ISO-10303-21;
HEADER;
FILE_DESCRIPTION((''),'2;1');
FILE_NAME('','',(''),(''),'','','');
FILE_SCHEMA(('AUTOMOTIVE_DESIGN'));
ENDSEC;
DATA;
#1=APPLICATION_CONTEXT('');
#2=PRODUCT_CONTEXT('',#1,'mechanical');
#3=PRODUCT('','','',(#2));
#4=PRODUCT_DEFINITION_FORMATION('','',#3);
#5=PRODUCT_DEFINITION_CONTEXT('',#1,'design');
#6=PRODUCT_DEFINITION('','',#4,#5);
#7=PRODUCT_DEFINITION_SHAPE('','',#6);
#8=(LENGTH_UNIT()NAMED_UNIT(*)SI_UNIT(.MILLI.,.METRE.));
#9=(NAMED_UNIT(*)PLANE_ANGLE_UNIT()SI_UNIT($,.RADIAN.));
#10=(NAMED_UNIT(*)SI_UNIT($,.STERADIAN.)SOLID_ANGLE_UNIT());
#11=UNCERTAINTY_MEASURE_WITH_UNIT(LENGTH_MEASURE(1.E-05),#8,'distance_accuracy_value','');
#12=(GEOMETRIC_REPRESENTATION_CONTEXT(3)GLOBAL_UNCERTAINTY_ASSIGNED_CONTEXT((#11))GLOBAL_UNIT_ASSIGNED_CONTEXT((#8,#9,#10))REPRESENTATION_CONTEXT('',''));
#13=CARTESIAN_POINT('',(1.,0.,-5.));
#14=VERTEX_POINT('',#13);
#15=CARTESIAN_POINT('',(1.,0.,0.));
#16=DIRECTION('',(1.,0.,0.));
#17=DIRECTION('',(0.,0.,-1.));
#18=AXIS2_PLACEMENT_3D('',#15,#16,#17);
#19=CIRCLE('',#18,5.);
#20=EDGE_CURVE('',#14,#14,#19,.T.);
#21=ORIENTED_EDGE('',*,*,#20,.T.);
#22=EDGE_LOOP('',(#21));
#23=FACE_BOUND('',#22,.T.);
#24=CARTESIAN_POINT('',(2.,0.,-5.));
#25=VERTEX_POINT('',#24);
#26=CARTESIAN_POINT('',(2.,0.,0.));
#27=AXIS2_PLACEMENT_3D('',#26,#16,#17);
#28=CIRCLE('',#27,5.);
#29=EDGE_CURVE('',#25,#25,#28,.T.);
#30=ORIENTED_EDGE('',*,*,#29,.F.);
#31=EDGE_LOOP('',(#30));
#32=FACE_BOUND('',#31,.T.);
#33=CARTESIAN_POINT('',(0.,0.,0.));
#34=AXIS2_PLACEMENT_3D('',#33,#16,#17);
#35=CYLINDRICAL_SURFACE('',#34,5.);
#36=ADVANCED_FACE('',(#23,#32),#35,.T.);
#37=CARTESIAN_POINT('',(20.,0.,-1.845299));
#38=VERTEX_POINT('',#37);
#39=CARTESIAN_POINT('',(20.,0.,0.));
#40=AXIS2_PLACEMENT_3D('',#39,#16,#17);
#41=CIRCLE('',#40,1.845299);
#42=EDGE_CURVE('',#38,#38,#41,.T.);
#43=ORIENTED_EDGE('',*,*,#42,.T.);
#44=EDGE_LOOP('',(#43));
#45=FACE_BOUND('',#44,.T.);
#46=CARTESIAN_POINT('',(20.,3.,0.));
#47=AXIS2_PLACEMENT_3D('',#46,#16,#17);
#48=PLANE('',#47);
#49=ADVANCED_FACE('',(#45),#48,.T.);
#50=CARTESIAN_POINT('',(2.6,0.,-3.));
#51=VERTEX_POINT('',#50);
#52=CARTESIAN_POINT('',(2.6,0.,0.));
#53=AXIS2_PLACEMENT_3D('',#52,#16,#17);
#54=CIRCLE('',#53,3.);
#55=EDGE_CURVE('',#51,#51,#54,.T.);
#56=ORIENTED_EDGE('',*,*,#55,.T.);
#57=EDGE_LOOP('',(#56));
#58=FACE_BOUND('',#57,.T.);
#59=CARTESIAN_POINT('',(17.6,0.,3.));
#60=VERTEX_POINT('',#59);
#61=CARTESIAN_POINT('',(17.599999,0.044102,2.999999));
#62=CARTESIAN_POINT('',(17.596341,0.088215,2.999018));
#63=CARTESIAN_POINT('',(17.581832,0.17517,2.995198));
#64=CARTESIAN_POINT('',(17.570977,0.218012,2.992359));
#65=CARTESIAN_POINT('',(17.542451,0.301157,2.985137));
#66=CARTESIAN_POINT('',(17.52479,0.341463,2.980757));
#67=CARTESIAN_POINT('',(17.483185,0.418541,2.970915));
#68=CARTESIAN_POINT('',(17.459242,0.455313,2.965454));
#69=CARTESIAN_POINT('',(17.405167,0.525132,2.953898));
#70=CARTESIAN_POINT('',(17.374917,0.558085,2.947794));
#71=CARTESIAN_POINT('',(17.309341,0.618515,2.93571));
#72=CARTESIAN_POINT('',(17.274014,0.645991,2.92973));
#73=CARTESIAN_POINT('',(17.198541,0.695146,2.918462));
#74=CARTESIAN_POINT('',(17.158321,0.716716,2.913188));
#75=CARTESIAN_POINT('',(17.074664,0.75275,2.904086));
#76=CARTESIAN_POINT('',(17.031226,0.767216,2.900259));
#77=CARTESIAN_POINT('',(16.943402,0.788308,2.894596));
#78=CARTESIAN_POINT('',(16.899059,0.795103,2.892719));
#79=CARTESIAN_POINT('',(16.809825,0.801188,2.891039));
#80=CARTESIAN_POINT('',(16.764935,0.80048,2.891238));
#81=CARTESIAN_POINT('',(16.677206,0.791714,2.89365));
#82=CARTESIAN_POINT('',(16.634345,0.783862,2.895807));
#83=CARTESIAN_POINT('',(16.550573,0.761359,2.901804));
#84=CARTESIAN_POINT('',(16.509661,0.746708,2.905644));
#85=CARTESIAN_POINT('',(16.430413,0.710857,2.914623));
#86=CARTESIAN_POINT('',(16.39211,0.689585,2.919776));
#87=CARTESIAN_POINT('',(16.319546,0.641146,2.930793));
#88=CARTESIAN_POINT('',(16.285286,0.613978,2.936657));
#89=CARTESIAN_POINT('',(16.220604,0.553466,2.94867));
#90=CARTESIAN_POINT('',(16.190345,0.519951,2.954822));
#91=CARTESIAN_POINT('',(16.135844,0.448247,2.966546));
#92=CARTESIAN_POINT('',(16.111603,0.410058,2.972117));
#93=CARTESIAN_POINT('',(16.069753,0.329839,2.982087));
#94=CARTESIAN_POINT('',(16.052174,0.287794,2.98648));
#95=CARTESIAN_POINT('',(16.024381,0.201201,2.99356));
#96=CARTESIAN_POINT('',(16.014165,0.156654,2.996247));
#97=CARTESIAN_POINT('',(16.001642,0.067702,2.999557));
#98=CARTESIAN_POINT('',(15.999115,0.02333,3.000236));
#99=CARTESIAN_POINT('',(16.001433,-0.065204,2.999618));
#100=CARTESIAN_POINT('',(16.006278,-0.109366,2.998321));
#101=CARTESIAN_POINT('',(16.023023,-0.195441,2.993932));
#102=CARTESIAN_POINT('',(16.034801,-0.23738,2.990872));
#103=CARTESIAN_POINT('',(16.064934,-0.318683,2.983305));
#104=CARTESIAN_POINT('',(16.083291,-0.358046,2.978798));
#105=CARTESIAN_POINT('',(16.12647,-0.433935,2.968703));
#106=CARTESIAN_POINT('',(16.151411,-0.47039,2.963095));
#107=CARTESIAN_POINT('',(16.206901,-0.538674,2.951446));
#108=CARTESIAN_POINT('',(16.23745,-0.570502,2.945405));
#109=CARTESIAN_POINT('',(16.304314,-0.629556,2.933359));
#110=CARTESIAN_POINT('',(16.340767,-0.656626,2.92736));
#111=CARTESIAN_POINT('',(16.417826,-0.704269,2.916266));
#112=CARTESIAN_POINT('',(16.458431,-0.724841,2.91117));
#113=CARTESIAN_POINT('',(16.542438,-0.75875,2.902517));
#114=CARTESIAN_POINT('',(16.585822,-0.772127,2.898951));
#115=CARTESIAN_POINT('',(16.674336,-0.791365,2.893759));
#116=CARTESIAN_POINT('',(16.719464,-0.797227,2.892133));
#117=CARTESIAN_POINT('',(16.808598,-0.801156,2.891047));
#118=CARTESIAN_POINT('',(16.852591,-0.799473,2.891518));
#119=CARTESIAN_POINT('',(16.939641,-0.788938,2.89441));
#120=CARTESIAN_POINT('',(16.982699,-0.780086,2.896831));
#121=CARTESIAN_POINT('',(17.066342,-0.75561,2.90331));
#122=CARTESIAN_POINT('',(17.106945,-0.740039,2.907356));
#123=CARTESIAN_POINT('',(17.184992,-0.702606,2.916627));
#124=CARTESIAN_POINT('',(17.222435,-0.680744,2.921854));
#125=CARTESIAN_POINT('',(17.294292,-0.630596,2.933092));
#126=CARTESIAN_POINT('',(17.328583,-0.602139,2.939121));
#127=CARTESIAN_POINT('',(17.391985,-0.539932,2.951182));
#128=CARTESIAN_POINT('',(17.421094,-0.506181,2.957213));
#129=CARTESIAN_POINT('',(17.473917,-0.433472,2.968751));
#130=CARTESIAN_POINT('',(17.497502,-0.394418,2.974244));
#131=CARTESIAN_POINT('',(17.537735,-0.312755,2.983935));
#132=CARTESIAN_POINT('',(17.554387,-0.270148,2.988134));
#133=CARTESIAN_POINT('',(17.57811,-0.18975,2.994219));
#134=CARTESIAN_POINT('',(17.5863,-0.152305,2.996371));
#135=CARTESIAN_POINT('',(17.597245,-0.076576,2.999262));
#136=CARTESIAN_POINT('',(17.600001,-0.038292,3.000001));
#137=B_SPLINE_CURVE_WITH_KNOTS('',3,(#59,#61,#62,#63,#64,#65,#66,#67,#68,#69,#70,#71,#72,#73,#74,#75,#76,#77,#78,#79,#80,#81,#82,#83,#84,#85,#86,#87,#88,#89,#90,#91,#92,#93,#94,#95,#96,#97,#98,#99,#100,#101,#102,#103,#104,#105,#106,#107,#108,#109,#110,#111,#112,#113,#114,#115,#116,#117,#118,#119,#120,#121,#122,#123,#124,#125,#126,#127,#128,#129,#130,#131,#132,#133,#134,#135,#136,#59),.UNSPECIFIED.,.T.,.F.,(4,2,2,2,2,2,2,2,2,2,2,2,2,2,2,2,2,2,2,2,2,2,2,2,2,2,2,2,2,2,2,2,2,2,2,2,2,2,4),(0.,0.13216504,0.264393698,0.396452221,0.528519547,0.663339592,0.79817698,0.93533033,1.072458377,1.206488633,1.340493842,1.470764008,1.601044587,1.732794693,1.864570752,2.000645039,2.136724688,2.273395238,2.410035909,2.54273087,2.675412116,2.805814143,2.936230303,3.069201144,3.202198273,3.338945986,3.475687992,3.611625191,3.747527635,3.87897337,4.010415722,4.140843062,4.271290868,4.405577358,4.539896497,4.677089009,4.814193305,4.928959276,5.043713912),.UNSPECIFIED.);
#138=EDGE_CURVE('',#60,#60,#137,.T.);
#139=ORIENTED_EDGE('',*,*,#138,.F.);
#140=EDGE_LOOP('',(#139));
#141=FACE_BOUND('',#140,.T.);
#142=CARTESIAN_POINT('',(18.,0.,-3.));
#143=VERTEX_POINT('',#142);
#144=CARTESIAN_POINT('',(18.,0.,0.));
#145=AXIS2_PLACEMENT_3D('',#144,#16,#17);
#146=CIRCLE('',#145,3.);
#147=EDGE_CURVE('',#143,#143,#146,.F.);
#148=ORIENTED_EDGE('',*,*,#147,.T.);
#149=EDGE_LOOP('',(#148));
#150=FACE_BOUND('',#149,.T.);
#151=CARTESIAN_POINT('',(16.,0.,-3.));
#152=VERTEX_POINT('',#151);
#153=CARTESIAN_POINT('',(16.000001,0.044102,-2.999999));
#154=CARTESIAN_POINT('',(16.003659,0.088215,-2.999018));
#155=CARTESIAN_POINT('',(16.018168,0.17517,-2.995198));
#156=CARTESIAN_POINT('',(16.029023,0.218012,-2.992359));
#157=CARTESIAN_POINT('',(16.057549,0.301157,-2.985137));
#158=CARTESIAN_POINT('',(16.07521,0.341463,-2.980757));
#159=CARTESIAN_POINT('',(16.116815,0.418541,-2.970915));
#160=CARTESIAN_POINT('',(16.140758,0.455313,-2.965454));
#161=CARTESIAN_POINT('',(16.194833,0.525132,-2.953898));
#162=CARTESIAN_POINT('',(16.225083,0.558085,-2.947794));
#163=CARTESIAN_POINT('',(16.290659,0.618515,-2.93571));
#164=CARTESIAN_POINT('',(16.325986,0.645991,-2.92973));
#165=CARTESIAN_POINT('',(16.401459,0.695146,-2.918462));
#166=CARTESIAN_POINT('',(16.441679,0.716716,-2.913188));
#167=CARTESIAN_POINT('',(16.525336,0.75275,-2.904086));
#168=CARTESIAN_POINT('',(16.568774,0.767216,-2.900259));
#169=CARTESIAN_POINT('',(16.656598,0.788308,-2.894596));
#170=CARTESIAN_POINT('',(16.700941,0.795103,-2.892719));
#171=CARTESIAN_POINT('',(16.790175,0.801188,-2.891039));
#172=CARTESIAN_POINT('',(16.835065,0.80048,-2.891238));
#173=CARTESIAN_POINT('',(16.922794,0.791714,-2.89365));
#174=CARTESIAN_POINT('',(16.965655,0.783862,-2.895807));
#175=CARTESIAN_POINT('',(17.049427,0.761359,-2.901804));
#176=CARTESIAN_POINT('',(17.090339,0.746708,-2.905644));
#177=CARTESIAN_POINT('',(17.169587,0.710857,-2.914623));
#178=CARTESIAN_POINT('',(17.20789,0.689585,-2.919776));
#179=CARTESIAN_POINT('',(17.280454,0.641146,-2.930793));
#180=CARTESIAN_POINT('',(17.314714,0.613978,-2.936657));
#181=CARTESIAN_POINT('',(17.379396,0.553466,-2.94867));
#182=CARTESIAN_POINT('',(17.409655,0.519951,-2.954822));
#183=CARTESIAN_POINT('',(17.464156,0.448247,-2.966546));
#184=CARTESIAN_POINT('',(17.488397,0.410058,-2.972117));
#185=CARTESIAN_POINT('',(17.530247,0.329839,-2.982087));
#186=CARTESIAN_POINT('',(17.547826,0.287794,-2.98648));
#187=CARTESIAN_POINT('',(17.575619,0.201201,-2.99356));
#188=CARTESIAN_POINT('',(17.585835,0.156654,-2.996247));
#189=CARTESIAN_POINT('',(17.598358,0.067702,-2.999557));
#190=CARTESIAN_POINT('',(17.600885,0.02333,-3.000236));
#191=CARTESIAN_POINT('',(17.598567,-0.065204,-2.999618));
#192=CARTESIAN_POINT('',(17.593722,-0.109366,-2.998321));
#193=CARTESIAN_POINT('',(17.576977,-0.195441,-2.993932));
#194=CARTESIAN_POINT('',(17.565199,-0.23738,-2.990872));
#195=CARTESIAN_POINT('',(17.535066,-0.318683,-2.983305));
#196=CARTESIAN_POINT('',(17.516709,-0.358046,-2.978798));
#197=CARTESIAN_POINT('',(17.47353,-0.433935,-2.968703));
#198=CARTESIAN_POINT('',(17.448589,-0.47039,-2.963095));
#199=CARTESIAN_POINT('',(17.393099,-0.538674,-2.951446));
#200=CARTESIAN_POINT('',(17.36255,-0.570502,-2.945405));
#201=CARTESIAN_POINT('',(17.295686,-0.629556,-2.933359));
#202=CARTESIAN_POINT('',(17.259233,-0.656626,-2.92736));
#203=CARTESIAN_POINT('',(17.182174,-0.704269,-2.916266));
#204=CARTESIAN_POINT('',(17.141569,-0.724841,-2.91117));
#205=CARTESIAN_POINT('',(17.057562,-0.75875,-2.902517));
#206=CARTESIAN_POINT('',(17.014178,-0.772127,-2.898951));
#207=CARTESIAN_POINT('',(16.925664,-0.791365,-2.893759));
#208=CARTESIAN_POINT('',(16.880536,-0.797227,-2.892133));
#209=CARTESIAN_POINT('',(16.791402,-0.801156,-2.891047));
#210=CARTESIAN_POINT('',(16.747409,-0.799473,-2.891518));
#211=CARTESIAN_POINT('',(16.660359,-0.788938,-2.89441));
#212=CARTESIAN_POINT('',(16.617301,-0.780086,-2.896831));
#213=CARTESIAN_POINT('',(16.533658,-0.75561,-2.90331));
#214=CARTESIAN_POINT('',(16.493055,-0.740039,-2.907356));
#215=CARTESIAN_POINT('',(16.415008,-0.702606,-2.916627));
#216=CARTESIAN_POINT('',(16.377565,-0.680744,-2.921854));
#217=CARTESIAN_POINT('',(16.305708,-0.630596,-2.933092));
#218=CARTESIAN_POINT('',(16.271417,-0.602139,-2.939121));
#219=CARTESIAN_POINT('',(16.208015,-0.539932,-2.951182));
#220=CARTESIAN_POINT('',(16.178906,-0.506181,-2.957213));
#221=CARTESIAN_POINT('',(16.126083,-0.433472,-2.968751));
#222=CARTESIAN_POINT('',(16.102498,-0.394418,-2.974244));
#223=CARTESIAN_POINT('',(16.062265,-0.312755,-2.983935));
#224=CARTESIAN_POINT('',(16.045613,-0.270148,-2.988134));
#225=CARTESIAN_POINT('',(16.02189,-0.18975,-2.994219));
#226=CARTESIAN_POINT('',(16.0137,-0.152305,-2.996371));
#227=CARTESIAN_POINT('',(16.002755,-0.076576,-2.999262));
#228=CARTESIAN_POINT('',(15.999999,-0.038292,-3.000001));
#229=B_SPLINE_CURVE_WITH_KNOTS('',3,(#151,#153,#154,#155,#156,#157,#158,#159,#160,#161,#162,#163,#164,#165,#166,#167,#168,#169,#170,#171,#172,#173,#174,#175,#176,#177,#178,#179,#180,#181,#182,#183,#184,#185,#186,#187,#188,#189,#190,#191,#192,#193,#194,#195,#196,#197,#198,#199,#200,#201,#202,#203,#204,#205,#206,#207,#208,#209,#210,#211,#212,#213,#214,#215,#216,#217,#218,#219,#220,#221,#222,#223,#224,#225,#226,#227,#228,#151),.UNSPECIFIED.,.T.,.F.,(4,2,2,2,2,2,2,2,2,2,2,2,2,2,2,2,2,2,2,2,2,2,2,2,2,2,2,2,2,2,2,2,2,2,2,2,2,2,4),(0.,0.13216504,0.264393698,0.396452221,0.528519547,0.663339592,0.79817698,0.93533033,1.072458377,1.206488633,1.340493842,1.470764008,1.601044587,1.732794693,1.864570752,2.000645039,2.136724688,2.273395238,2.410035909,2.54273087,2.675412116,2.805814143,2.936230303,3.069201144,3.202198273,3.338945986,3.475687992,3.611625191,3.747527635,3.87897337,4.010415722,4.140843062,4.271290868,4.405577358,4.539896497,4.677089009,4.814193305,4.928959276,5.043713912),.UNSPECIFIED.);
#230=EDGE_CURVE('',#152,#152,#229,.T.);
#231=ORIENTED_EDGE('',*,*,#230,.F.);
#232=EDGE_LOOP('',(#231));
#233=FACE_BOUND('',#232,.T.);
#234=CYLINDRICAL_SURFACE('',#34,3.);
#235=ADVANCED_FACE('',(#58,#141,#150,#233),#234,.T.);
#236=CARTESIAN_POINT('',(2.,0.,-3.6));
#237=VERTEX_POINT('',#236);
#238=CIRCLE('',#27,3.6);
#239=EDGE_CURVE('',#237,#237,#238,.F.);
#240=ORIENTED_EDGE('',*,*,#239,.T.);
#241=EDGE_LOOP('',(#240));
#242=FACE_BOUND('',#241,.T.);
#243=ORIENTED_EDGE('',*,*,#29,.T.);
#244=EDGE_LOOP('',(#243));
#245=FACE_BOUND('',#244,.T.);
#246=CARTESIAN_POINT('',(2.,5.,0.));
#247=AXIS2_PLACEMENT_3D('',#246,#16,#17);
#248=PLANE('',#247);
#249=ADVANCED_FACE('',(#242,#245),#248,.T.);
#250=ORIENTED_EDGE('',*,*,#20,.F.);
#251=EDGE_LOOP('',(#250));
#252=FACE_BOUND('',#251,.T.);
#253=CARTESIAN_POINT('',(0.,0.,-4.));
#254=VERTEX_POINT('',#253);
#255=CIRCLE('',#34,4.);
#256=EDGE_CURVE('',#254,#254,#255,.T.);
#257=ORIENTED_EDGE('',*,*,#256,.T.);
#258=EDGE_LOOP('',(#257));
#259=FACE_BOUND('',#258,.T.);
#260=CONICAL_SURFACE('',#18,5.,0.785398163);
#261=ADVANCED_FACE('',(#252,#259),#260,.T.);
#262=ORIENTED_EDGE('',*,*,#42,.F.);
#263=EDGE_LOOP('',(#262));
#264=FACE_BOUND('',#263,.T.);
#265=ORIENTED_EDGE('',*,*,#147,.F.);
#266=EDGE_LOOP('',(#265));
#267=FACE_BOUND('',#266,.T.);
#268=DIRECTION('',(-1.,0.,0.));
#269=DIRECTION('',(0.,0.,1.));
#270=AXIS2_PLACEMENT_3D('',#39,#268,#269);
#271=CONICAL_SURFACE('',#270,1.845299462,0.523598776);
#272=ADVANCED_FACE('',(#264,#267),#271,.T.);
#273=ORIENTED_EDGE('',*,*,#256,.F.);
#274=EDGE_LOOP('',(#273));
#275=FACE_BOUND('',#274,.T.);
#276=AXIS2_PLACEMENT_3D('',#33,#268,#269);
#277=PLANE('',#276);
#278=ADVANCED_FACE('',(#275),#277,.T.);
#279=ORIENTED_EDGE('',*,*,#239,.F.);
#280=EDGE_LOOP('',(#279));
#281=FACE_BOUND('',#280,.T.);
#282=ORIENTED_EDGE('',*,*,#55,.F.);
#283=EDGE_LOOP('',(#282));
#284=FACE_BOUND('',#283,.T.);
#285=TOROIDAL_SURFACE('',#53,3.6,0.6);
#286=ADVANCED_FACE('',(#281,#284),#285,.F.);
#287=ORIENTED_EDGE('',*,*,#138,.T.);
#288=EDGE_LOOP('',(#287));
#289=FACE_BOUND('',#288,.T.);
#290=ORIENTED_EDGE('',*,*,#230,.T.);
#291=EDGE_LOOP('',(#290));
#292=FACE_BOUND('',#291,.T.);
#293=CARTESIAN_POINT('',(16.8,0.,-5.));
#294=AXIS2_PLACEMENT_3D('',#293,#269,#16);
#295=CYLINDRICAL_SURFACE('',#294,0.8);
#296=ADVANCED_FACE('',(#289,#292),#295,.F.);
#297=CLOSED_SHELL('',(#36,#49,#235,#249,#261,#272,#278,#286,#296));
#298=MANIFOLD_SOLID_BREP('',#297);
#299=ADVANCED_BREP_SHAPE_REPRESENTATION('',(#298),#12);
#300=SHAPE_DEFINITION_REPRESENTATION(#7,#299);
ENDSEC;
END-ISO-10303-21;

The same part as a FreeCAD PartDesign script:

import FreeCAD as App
import Part
import Sketcher
from FreeCAD import Vector
Q = App.Units.Quantity


def edges_at(feature, points):
    """Names of the edges that pass closest to the given points."""
    edges = feature.Shape.Edges
    near = lambda p: min(range(len(edges)), key=lambda i: edges[i].distToShape(Part.Vertex(*p))[0])
    return sorted({f"Edge{near(p) + 1}" for p in points})

doc = App.newDocument("Part")
body = doc.addObject("PartDesign::Body", "Body")

sketch1 = body.newObject("Sketcher::SketchObject", "Sketch")
sketch1.AttachmentSupport = (doc.getObject("XY_Plane"), [""])
sketch1.MapMode = "FlatFace"
sketch1.addGeometry(Part.LineSegment(Vector(0, 0, 0), Vector(20, 0, 0)), False)
sketch1.addGeometry(Part.LineSegment(Vector(20, 0, 0), Vector(20, 3, 0)), False)
sketch1.addGeometry(Part.LineSegment(Vector(20, 3, 0), Vector(2, 3, 0)), False)
sketch1.addGeometry(Part.LineSegment(Vector(2, 3, 0), Vector(2, 5, 0)), False)
sketch1.addGeometry(Part.LineSegment(Vector(2, 5, 0), Vector(1, 5, 0)), False)
sketch1.addGeometry(Part.LineSegment(Vector(1, 5, 0), Vector(0, 4, 0)), False)
sketch1.addGeometry(Part.LineSegment(Vector(0, 4, 0), Vector(0, 0, 0)), False)
sketch1.addConstraint(Sketcher.Constraint("Coincident", 0, 2, 1, 1))
sketch1.addConstraint(Sketcher.Constraint("Coincident", 1, 2, 2, 1))
sketch1.addConstraint(Sketcher.Constraint("Coincident", 2, 2, 3, 1))
sketch1.addConstraint(Sketcher.Constraint("Coincident", 3, 2, 4, 1))
sketch1.addConstraint(Sketcher.Constraint("Coincident", 4, 2, 5, 1))
sketch1.addConstraint(Sketcher.Constraint("Coincident", 5, 2, 6, 1))
sketch1.addConstraint(Sketcher.Constraint("Coincident", 6, 2, 0, 1))
sketch1.addConstraint(Sketcher.Constraint("Horizontal", 0))
sketch1.addConstraint(Sketcher.Constraint("Vertical", 1))
sketch1.addConstraint(Sketcher.Constraint("Horizontal", 2))
sketch1.addConstraint(Sketcher.Constraint("Vertical", 3))
sketch1.addConstraint(Sketcher.Constraint("Horizontal", 4))
sketch1.addConstraint(Sketcher.Constraint("Vertical", 6))
sketch1.addConstraint(Sketcher.Constraint("Coincident", 6, 2, -1, 1))
sketch1.addConstraint(Sketcher.Constraint("DistanceX", 0, 1, 0, 2, Q("20 mm")))
sketch1.addConstraint(Sketcher.Constraint("DistanceX", 2, 2, 2, 1, Q("18 mm")))
sketch1.addConstraint(Sketcher.Constraint("DistanceX", 4, 2, 4, 1, Q("1 mm")))
sketch1.addConstraint(Sketcher.Constraint("DistanceY", 1, 1, 1, 2, Q("3 mm")))
sketch1.addConstraint(Sketcher.Constraint("DistanceY", 3, 1, 3, 2, Q("2 mm")))
sketch1.addConstraint(Sketcher.Constraint("DistanceY", 6, 2, 6, 1, Q("4 mm")))
revolution = body.newObject("PartDesign::Revolution", "Revolution")
revolution.Profile = sketch1
revolution.ReferenceAxis = (sketch1, ["H_Axis"])
revolution.Angle = 360

sketch2 = body.newObject("Sketcher::SketchObject", "Sketch001")
sketch2.AttachmentSupport = (doc.getObject("XY_Plane"), [""])
sketch2.MapMode = "FlatFace"
sketch2.addGeometry(Part.Circle(Vector(16.8, 0, 0), Vector(0, 0, 1), 0.8), False)
sketch2.addConstraint(Sketcher.Constraint("PointOnObject", 0, 3, -1))
sketch2.addConstraint(Sketcher.Constraint("Diameter", 0, Q("1.6 mm")))
sketch2.addConstraint(Sketcher.Constraint("DistanceX", -1, 1, 0, 3, Q("16.8 mm")))
pocket1 = body.newObject("PartDesign::Pocket", "Pocket")
pocket1.Profile = sketch2
pocket1.Type = "ThroughAll"
pocket1.Midplane = True
doc.recompute()

fillet = body.newObject("PartDesign::Fillet", "Fillet")
fillet.Base = (pocket1, edges_at(pocket1, [(2, 0, 3)]))
fillet.Radius = 0.6
doc.recompute()

chamfer = body.newObject("PartDesign::Chamfer", "Chamfer")
chamfer.Base = (fillet, edges_at(fillet, [(20, 0, 3)]))
chamfer.ChamferType = "Two distances"
chamfer.Size = 2
chamfer.Size2 = 1.154701

doc.recompute()
